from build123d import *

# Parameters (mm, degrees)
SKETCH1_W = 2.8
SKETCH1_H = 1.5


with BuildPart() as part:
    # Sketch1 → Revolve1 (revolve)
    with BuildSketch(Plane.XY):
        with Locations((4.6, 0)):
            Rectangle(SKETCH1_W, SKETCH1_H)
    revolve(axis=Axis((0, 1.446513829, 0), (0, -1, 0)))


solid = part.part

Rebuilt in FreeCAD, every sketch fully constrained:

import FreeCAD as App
import Part
import Sketcher


def add_polygon(sketch, points):
    """Adds a closed chain of lines whose ends are joined by coincident constraints."""
    first, n = sketch.GeometryCount, len(points)
    for a, b in zip(points, points[1:] + points[:1]):
        sketch.addGeometry(Part.LineSegment(App.Vector(*a, 0), App.Vector(*b, 0)), False)
    for i in range(n):
        sketch.addConstraint(Sketcher.Constraint("Coincident", first + i, 2, first + (i + 1) % n, 1))

doc = App.newDocument("Part")
params = doc.addObject("Spreadsheet::Sheet", "Params")
for row, (alias, value) in enumerate([
    ("sketch1_width", "2.8 mm"),
    ("sketch1_height", "1.5 mm"),
    ("revolution_angle", "360 deg"),
], start=1):
    params.set(f"A{row}", alias)
    params.set(f"B{row}", "=" + value)
    params.setAlias(f"B{row}", alias)

body = doc.addObject("PartDesign::Body", "Body")

# Sketch on XY plane
sketch1 = doc.addObject("Sketcher::SketchObject", "Sketch")
body.addObject(sketch1)
sketch1.AttachmentSupport = (doc.XY_Plane, [""])
sketch1.MapMode = "FlatFace"
add_polygon(sketch1, [(3.2, 0.75), (3.2, -0.75), (6, -0.75), (6, 0.75)])  # lines 0-3
sketch1.addConstraint([
    Sketcher.Constraint("Vertical", 0),
    Sketcher.Constraint("Horizontal", 1),
    Sketcher.Constraint("Vertical", 2),
    Sketcher.Constraint("Horizontal", 3),
    Sketcher.Constraint("DistanceX", 1, 1, 1, 2, 2.8),
    Sketcher.Constraint("DistanceY", 0, 2, 0, 1, 1.5),
    Sketcher.Constraint("DistanceX", -1, 1, 1, 2, 6.0),
    Sketcher.Constraint("DistanceY", 0, 2, -1, 1, 0.75),
])
sketch1.setExpression("Constraints[8]", "Params.sketch1_width")
sketch1.setExpression("Constraints[9]", "Params.sketch1_height")
revolution = doc.addObject("PartDesign::Revolution", "Revolution")
body.addObject(revolution)
revolution.Profile = sketch1
revolution.ReferenceAxis = (sketch1, ["V_Axis"])
revolution.setExpression("Angle", "Params.revolution_angle")

doc.recompute()
